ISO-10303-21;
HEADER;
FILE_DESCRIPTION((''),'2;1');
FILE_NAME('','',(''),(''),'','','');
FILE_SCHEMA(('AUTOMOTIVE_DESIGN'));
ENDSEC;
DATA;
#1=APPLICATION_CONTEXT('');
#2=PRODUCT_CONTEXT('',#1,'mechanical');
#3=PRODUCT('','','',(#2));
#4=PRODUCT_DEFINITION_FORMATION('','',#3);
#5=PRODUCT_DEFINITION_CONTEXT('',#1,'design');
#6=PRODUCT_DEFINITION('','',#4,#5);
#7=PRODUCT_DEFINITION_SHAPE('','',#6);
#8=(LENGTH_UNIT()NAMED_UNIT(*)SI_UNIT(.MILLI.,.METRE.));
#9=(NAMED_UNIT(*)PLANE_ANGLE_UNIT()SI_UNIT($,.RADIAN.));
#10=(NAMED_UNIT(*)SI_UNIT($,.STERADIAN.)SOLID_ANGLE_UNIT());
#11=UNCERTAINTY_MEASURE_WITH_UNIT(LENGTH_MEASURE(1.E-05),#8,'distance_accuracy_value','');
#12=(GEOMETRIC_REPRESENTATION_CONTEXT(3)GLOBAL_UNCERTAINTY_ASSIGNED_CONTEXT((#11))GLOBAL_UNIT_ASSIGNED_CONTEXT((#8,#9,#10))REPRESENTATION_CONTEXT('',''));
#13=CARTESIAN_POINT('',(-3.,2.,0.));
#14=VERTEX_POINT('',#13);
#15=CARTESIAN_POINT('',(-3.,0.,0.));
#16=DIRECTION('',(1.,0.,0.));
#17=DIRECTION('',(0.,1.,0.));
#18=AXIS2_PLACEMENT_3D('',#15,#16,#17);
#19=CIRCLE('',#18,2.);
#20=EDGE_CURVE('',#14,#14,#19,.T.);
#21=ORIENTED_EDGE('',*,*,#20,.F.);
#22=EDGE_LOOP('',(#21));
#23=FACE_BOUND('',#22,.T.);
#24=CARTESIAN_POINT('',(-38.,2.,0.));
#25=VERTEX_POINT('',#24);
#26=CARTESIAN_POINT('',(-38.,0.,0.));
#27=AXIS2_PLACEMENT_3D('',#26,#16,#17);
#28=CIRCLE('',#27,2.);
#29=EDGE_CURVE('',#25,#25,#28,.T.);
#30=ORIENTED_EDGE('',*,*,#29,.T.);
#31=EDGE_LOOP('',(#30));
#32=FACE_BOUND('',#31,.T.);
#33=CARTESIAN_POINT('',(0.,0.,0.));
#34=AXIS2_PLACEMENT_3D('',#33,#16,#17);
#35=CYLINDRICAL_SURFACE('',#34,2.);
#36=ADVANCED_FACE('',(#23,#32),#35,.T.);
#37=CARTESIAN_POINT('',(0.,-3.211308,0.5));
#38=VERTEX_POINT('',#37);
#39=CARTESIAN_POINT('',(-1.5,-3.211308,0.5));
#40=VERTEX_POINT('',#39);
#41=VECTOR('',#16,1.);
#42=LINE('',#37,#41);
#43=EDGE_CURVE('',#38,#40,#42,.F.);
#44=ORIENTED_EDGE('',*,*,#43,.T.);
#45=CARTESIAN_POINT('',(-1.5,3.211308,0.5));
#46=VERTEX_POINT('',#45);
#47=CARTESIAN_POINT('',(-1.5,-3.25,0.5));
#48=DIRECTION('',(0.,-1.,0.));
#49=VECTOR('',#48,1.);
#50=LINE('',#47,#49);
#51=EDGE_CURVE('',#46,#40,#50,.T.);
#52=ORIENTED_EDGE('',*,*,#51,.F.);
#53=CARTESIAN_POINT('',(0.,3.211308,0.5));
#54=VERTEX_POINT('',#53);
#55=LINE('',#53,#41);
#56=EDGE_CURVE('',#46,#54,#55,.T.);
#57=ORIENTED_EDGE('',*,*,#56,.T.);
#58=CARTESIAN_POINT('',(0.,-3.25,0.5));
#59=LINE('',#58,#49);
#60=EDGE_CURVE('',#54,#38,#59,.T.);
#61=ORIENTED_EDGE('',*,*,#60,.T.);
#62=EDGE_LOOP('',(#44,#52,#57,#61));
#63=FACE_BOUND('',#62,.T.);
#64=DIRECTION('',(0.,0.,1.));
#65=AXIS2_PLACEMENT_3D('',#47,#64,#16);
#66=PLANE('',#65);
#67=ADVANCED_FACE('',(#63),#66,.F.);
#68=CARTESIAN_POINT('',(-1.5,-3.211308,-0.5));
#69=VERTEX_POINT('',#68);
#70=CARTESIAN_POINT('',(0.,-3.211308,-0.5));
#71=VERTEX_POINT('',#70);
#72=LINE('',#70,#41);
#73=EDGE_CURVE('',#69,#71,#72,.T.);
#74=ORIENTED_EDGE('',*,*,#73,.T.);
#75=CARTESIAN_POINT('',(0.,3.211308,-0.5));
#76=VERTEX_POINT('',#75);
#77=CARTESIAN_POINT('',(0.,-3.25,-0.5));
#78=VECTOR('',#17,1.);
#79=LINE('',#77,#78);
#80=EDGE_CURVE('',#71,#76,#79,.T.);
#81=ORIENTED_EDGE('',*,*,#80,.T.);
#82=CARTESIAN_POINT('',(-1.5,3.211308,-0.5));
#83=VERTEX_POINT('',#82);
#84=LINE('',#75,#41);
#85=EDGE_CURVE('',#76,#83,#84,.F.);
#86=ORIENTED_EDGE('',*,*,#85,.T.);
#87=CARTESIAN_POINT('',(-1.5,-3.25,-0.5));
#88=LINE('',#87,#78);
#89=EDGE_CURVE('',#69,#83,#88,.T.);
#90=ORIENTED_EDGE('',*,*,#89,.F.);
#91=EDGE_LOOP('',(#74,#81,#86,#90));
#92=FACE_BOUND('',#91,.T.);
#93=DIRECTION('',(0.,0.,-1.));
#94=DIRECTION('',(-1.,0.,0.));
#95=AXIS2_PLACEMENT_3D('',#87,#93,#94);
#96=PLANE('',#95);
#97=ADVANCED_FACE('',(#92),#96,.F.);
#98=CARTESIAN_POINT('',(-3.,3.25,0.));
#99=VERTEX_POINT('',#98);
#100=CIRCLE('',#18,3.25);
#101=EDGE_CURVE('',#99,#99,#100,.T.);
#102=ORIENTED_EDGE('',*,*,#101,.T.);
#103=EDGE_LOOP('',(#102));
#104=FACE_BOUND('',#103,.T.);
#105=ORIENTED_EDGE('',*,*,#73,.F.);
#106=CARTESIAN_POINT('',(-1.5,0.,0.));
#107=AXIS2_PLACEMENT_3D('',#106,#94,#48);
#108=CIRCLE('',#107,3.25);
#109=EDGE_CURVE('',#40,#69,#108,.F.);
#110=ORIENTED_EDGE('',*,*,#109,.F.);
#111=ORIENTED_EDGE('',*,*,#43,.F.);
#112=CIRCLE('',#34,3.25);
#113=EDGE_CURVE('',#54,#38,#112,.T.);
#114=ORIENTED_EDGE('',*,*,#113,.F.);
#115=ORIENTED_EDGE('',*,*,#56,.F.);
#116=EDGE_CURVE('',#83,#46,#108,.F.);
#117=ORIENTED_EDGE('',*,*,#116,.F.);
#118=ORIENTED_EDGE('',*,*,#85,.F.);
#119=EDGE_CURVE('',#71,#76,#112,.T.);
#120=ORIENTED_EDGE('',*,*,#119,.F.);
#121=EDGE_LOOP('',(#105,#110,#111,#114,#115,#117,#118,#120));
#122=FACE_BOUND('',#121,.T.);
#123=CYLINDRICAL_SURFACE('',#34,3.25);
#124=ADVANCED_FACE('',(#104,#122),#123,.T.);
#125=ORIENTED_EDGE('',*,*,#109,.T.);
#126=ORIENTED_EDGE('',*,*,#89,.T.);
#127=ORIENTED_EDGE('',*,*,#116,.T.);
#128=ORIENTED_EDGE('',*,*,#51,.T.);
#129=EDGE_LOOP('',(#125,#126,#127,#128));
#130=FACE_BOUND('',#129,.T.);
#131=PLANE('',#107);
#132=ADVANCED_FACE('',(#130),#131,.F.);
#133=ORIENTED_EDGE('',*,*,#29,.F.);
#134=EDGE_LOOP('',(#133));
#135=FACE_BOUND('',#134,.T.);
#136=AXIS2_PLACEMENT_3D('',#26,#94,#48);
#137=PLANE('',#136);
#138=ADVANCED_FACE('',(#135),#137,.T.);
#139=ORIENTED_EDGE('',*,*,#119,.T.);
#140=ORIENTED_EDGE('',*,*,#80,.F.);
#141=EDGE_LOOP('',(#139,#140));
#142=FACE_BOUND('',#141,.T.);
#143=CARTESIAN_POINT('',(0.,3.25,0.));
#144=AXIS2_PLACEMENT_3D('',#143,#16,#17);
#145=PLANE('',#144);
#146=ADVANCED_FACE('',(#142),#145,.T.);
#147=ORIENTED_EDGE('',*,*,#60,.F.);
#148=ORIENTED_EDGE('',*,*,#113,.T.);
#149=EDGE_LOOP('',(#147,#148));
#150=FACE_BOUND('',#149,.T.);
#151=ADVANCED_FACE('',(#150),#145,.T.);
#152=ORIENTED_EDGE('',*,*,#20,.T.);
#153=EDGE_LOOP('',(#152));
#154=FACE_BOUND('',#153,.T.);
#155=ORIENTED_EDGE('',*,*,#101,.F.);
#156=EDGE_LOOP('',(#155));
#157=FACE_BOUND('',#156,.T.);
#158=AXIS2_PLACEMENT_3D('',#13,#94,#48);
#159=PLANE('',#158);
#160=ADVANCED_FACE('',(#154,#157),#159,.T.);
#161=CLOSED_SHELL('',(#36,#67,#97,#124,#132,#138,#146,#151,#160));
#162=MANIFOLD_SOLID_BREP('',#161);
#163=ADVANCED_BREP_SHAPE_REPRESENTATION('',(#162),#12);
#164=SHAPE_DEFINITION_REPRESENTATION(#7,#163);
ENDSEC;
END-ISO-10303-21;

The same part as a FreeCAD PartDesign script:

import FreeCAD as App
import Part
import Sketcher
from FreeCAD import Vector
Q = App.Units.Quantity


def add_polygon(sketch, points):
    """Adds a closed chain of lines whose ends are joined by coincident constraints."""
    first, n = sketch.GeometryCount, len(points)
    for a, b in zip(points, points[1:] + points[:1]):
        sketch.addGeometry(Part.LineSegment(App.Vector(*a, 0), App.Vector(*b, 0)), False)
    for i in range(n):
        sketch.addConstraint(Sketcher.Constraint("Coincident", first + i, 2, first + (i + 1) % n, 1))

doc = App.newDocument("Part")
body = doc.addObject("PartDesign::Body", "Body")

# Sketch on XY plane
sketch1 = doc.addObject("Sketcher::SketchObject", "Sketch")
body.addObject(sketch1)
sketch1.AttachmentSupport = (doc.XY_Plane, [""])
sketch1.MapMode = "FlatFace"
add_polygon(sketch1, [(-38, 0), (0, 0), (0, 3.25), (-3, 3.25), (-3, 2), (-38, 2)])  # lines 0-5
sketch1.addConstraint(Sketcher.Constraint("Horizontal", 0))
sketch1.addConstraint(Sketcher.Constraint("Vertical", 1))
sketch1.addConstraint(Sketcher.Constraint("Horizontal", 2))
sketch1.addConstraint(Sketcher.Constraint("Vertical", 3))
sketch1.addConstraint(Sketcher.Constraint("Horizontal", 4))
sketch1.addConstraint(Sketcher.Constraint("Vertical", 5))
sketch1.addConstraint(Sketcher.Constraint("Coincident", 0, 2, -1, 1))
sketch1.addConstraint(Sketcher.Constraint("DistanceX", 0, 1, 0, 2, Q("38 mm")))
sketch1.addConstraint(Sketcher.Constraint("DistanceX", 2, 2, 2, 1, Q("3 mm")))
sketch1.addConstraint(Sketcher.Constraint("DistanceY", 5, 2, 5, 1, Q("2 mm")))
sketch1.addConstraint(Sketcher.Constraint("DistanceY", 1, 1, 1, 2, Q("3.25 mm")))
revolution = doc.addObject("PartDesign::Revolution", "Revolution")
body.addObject(revolution)
revolution.Profile = sketch1
revolution.ReferenceAxis = (sketch1, ["H_Axis"])
revolution.Angle = 360

# Sketch on YZ plane
sketch2 = doc.addObject("Sketcher::SketchObject", "Sketch001")
body.addObject(sketch2)
sketch2.AttachmentSupport = (doc.YZ_Plane, [""])
sketch2.MapMode = "FlatFace"
add_polygon(sketch2, [(3.25, 0.5), (-3.25, 0.5), (-3.25, -0.5), (3.25, -0.5)])  # lines 0-3
sketch2.addConstraint(Sketcher.Constraint("Horizontal", 0))
sketch2.addConstraint(Sketcher.Constraint("Vertical", 1))
sketch2.addConstraint(Sketcher.Constraint("Horizontal", 2))
sketch2.addConstraint(Sketcher.Constraint("Vertical", 3))
sketch2.addConstraint(Sketcher.Constraint("Symmetric", 0, 2, 2, 2, -1, 1))
sketch2.addConstraint(Sketcher.Constraint("DistanceY", 1, 2, 1, 1, Q("1 mm")))
sketch2.addConstraint(Sketcher.Constraint("DistanceX", 0, 2, 0, 1, Q("6.5 mm")))
pocket1 = doc.addObject("PartDesign::Pocket", "Pocket")
body.addObject(pocket1)
pocket1.Profile = sketch2
pocket1.Length = 1.5

doc.recompute()
